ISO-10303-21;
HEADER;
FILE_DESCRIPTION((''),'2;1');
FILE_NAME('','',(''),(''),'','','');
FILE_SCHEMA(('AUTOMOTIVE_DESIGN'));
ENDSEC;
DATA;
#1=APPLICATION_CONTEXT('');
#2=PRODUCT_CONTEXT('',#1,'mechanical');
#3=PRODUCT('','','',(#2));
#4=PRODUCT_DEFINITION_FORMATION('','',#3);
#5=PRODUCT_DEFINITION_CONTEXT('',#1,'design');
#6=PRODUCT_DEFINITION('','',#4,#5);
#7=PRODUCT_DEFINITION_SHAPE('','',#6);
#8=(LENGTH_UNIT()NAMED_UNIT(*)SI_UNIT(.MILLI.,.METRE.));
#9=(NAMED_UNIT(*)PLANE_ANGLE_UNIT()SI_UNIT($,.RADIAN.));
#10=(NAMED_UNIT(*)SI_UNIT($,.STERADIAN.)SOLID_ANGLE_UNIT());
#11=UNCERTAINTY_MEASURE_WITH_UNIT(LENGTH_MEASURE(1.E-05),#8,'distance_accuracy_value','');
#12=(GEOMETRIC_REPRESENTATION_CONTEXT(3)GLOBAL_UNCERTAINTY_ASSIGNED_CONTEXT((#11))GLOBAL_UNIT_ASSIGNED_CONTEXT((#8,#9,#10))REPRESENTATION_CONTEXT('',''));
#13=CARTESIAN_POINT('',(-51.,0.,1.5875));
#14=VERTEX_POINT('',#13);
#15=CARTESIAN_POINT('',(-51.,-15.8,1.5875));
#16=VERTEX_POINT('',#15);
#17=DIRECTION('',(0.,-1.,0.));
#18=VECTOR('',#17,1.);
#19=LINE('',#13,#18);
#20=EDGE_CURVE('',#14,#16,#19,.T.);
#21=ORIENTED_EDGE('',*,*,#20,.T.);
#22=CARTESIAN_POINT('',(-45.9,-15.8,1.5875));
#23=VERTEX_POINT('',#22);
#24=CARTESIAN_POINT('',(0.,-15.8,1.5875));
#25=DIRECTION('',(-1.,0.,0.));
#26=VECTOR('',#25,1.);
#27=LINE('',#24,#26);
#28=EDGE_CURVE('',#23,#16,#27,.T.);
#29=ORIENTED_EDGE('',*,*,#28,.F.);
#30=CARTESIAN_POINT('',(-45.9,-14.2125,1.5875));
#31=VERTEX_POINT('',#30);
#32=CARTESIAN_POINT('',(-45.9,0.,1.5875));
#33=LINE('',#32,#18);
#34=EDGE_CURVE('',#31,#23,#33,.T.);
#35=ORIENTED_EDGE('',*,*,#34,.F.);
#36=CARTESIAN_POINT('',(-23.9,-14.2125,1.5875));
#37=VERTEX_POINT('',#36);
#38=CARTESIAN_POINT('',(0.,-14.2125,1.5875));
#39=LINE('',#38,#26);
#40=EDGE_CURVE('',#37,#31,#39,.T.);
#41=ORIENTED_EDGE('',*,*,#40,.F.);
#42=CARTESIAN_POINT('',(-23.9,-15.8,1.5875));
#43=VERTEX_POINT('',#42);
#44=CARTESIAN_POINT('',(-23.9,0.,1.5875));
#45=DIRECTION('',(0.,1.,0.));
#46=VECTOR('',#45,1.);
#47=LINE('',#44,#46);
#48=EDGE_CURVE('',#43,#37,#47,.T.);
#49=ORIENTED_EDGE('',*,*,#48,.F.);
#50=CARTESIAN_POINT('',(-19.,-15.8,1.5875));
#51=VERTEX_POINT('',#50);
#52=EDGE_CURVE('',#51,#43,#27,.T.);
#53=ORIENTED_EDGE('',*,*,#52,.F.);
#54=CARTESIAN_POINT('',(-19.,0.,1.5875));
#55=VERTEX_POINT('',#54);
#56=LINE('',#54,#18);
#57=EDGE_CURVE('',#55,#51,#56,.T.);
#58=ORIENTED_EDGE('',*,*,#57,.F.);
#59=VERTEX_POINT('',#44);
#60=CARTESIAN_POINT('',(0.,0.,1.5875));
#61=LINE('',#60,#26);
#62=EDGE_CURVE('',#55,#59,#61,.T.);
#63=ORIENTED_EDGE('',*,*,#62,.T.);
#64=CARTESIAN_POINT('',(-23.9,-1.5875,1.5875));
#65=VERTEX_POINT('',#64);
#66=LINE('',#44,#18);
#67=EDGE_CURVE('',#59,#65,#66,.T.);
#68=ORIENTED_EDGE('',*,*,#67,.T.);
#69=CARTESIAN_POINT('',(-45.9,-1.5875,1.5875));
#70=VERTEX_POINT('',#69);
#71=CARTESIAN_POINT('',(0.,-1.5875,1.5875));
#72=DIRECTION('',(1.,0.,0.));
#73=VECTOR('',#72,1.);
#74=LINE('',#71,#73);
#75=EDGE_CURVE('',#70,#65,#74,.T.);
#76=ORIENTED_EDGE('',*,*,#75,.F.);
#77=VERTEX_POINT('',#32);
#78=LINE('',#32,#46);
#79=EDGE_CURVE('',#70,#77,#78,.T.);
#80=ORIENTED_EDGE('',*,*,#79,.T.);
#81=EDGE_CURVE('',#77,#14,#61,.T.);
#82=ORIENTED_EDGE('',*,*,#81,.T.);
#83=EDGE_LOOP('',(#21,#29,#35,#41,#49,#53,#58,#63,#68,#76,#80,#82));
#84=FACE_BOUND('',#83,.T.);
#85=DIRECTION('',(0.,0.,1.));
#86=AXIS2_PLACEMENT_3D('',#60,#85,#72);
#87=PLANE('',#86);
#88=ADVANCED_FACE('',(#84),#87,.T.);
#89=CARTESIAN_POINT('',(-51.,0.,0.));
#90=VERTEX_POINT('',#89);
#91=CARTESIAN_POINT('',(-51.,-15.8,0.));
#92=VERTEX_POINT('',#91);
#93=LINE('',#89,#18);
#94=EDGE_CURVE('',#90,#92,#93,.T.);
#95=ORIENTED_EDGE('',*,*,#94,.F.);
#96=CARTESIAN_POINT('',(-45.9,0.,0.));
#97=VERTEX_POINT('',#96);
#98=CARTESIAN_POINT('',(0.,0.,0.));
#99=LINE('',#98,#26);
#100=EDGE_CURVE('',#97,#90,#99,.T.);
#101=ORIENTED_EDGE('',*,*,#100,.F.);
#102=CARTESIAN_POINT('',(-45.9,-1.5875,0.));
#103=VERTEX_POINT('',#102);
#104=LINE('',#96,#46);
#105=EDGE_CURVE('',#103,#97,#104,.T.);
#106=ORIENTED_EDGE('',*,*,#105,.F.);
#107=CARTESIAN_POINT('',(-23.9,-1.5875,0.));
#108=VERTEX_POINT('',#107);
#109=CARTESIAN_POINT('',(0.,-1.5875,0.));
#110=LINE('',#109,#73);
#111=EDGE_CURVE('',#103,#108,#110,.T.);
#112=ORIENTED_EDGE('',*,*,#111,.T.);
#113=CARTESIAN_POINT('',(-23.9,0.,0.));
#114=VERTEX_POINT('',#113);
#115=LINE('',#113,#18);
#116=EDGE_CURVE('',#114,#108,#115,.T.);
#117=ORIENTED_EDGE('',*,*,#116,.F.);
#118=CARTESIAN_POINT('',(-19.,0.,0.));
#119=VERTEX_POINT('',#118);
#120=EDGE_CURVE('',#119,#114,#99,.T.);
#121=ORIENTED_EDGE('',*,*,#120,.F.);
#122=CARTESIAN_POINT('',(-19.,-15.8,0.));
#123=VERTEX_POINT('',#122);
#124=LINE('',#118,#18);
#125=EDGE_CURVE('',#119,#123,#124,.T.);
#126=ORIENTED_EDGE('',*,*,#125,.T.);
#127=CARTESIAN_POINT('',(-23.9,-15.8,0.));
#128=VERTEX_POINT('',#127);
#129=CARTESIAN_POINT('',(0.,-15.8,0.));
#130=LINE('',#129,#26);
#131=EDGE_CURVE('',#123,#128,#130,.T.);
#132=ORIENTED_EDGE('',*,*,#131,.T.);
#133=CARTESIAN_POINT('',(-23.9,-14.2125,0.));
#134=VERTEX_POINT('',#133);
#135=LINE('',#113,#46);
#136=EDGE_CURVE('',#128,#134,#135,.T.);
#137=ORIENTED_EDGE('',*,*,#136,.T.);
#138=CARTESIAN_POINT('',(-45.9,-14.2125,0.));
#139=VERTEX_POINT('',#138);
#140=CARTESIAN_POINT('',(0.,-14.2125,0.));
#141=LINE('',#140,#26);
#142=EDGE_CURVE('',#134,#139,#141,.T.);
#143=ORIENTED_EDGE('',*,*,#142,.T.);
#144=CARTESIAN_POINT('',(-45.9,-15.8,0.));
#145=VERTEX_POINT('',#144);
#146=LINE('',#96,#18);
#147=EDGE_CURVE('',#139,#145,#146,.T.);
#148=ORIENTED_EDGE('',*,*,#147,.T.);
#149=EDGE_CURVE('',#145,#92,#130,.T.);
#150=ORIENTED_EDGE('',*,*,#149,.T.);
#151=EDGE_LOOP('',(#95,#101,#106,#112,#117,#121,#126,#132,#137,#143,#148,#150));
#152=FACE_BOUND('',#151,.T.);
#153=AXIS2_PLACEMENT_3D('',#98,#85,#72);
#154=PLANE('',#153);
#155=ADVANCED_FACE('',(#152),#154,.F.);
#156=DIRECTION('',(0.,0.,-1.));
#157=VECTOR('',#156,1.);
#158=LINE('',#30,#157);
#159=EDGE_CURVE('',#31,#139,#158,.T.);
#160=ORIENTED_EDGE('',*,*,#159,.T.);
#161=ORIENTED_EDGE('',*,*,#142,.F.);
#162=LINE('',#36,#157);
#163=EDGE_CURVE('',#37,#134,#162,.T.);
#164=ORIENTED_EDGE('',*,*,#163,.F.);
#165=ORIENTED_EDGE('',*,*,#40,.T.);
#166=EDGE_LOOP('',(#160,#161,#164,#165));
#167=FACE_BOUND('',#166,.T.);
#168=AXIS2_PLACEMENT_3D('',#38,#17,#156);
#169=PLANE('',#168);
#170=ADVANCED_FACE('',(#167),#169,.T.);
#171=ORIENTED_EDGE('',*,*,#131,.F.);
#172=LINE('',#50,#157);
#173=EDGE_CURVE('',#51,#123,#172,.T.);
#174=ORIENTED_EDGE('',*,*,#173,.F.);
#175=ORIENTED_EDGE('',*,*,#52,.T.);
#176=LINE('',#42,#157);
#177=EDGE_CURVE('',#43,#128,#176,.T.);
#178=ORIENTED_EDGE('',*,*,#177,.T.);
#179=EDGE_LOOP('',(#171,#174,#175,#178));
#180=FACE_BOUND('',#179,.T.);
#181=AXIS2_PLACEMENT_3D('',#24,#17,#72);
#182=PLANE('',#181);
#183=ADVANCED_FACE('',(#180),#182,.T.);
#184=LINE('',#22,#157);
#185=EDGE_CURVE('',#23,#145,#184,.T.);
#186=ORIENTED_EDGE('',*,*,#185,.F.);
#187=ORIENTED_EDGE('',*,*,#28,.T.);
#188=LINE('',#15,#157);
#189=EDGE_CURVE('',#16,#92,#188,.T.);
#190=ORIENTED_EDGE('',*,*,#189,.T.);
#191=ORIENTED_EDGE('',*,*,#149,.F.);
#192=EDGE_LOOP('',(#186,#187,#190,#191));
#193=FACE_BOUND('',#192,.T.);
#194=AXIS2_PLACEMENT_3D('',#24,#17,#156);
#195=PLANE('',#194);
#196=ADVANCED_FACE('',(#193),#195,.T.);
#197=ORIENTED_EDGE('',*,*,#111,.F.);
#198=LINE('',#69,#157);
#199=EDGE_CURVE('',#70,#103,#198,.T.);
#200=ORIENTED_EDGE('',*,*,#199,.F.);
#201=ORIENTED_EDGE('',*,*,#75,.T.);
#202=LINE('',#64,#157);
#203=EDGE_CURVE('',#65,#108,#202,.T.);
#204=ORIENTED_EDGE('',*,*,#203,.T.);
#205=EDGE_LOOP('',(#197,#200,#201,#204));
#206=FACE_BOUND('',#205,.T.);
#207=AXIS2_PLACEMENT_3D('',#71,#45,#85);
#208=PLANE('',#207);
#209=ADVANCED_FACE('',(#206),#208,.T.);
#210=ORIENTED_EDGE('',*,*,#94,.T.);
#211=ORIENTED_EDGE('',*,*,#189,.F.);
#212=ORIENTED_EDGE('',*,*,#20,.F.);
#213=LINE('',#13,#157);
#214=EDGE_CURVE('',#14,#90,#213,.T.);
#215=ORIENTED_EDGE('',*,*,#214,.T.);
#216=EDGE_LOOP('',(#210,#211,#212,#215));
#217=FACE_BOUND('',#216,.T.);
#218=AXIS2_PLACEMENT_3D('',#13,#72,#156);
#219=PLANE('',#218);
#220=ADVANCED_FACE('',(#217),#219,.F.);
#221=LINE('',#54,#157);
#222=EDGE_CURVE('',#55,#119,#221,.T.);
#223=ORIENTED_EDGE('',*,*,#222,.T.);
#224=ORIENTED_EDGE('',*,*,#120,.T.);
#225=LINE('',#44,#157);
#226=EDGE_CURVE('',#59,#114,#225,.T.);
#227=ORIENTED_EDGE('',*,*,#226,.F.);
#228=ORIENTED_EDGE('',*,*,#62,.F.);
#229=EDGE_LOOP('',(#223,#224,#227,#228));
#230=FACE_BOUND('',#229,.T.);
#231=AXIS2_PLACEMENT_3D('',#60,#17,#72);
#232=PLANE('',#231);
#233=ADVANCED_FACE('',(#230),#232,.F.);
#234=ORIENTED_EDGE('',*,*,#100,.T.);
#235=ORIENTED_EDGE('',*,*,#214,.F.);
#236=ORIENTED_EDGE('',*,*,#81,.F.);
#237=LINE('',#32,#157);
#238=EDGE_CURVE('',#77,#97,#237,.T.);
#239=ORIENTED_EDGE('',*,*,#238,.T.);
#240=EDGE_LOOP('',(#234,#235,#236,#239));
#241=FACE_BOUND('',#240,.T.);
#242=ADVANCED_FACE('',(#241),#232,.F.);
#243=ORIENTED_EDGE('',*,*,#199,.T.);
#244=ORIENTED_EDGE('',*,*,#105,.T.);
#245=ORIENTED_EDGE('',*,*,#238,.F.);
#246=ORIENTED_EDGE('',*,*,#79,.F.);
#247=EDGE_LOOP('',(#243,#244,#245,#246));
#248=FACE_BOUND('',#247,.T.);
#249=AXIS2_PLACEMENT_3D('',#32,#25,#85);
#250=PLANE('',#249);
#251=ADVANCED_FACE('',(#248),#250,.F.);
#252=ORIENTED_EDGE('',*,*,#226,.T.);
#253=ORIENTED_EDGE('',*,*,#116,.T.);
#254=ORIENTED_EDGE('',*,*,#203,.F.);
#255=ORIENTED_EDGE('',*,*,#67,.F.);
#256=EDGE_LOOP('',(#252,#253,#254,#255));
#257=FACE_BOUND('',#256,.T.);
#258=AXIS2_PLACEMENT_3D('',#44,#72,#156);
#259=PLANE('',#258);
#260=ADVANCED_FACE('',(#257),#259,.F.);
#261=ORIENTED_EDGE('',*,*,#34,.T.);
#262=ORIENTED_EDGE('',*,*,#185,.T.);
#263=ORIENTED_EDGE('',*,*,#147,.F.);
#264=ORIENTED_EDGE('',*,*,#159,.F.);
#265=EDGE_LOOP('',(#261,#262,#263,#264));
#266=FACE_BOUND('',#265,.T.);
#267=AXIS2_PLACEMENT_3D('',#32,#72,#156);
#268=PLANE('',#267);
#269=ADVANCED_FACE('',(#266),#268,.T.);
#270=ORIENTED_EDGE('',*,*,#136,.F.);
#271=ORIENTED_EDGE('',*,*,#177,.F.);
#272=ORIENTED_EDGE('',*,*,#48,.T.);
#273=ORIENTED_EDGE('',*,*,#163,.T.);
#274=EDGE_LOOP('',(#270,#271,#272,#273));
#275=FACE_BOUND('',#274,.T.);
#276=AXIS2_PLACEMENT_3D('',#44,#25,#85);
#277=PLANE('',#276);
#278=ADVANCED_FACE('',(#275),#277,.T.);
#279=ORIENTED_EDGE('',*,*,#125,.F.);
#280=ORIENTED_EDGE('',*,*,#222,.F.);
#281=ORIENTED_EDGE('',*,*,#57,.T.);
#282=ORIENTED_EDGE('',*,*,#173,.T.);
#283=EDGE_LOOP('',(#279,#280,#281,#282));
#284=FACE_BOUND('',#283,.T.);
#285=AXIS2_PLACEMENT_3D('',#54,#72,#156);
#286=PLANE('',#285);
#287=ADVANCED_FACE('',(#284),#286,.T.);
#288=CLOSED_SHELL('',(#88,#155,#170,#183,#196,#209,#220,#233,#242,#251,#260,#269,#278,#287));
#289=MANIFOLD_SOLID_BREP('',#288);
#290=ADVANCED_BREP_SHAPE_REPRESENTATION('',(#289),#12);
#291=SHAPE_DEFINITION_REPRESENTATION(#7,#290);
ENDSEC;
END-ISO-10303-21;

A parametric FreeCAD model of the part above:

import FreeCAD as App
import Part
import Sketcher

V = App.Vector


def add_polygon(sketch, points):
    """Adds a closed chain of lines whose ends are joined by coincident constraints."""
    first, n = sketch.GeometryCount, len(points)
    for a, b in zip(points, points[1:] + points[:1]):
        sketch.addGeometry(Part.LineSegment(App.Vector(*a, 0), App.Vector(*b, 0)), False)
    for i in range(n):
        sketch.addConstraint(Sketcher.Constraint("Coincident", first + i, 2, first + (i + 1) % n, 1))

doc = App.newDocument("Part")
body = doc.addObject("PartDesign::Body", "Body")

sketch1 = body.newObject("Sketcher::SketchObject", "Sketch")
sketch1.AttachmentSupport = (doc.getObject("XY_Plane"), [""])
sketch1.MapMode = "FlatFace"
add_polygon(sketch1, [(-51, -15.8), (-45.9, -15.8), (-45.9, -14.2), (-23.9, -14.2), (-23.9, -15.8), (-19, -15.8), (-19, 0), (-23.9, 0), (-23.9, -1.6), (-45.9, -1.6), (-45.9, 0), (-51, 0)])
sketch1.addConstraint([
    Sketcher.Constraint("Horizontal", 0),
    Sketcher.Constraint("Vertical", 1),
    Sketcher.Constraint("Horizontal", 2),
    Sketcher.Constraint("Vertical", 3),
    Sketcher.Constraint("Horizontal", 4),
    Sketcher.Constraint("Vertical", 5),
    Sketcher.Constraint("Horizontal", 6),
    Sketcher.Constraint("Vertical", 7),
    Sketcher.Constraint("Horizontal", 8),
    Sketcher.Constraint("Vertical", 9),
    Sketcher.Constraint("Horizontal", 10),
    Sketcher.Constraint("Vertical", 11),
    Sketcher.Constraint("PointOnObject", 5, 2, -1),
    Sketcher.Constraint("PointOnObject", 9, 2, -1),
    Sketcher.Constraint("Horizontal", 0, 2, 3, 2),
    Sketcher.Constraint("Vertical", 3, 2, 6, 2),
    Sketcher.Constraint("Vertical", 1, 2, 8, 2),
    Sketcher.Constraint("Equal", 3, 7),
    Sketcher.Constraint("DistanceX", 2, 1, 2, 2, 22.0),
    Sketcher.Constraint("DistanceX", 0, 1, 0, 2, 5.1),
    Sketcher.Constraint("DistanceX", 4, 1, 4, 2, 4.9),
    Sketcher.Constraint("DistanceY", 5, 1, 5, 2, 15.8),
    Sketcher.Constraint("DistanceX", 4, 2, -1, 1, 19.0),
    Sketcher.Constraint("DistanceY", 1, 1, 1, 2, 1.5875),
])
pad1 = body.newObject("PartDesign::Pad", "Pad")
pad1.Profile = sketch1
pad1.Length = 1.5875

doc.recompute()
